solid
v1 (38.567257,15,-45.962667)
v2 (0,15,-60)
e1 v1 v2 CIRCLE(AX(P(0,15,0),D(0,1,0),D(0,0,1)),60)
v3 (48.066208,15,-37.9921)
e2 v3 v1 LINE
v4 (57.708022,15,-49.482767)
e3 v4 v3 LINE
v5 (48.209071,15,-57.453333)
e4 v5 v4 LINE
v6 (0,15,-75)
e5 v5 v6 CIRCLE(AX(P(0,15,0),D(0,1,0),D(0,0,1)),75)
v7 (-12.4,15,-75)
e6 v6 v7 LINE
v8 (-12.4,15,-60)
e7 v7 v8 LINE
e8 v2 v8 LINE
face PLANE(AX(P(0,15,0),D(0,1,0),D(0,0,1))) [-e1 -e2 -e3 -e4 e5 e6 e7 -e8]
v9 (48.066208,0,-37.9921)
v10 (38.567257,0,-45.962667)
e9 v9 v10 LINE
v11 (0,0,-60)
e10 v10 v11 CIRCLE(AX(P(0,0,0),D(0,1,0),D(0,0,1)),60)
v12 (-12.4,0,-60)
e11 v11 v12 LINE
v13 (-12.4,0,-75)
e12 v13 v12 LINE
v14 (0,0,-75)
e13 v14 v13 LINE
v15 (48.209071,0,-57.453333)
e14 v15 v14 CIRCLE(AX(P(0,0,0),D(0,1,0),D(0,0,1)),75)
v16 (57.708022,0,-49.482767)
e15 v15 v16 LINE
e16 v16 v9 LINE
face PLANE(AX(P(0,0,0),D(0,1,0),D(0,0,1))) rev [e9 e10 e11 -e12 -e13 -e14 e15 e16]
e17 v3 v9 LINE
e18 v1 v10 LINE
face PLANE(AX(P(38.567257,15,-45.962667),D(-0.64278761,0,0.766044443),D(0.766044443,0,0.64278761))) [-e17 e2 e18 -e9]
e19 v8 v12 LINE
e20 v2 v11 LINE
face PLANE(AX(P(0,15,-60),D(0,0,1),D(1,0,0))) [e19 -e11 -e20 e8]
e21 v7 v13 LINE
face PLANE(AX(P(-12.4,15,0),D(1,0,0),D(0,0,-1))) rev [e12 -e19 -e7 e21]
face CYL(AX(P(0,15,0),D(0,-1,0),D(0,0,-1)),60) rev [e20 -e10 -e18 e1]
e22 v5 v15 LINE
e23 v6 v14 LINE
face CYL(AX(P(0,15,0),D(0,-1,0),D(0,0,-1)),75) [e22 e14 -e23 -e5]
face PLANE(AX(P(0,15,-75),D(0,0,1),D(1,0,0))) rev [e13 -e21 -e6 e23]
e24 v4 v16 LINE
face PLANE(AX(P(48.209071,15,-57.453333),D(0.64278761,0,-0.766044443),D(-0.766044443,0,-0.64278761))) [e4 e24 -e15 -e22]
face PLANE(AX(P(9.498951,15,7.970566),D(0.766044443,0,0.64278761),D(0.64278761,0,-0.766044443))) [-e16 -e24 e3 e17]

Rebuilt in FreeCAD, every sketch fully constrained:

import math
import FreeCAD as App
import Part
import Sketcher
from FreeCAD import Vector
Q = App.Units.Quantity

doc = App.newDocument("Part")
params = doc.addObject("Spreadsheet::Sheet", "Params")
for row, (alias, value) in enumerate([
    ("sketch1_radius", "60 mm"),
    ("sketch1_radius2", "75 mm"),
    ("sketch1_width", "12.4 mm"),
    ("sketch1_length", "12.4 mm"),
    ("pad1_length", "15 mm"),
], start=1):
    params.set(f"A{row}", alias)
    params.set(f"B{row}", "=" + value)
    params.setAlias(f"B{row}", alias)

body = doc.addObject("PartDesign::Body", "Body")

sketch1 = body.newObject("Sketcher::SketchObject", "Sketch")
sketch1.AttachmentSupport = (doc.getObject("XZ_Plane"), [""])
sketch1.MapMode = "FlatFace"
sketch1.addGeometry([
    Part.ArcOfCircle(Part.Circle(Vector(0, 0, 0), Vector(0, 0, 1), 60), math.radians(-90), math.radians(-50)),
    Part.LineSegment(Vector(38.6, -46, 0), Vector(48.1, -38, 0)),
    Part.LineSegment(Vector(48.1, -38, 0), Vector(57, -48.7, 0)),
    Part.LineSegment(Vector(57, -48.7, 0), Vector(57.7, -49.5, 0)),
    Part.LineSegment(Vector(57.7, -49.5, 0), Vector(48.2, -57.5, 0)),
    Part.ArcOfCircle(Part.Circle(Vector(0, 0, 0), Vector(0, 0, 1), 75), math.radians(-90), math.radians(-50)),
    Part.LineSegment(Vector(0, -75, 0), Vector(-12.4, -75, 0)),
    Part.LineSegment(Vector(-12.4, -75, 0), Vector(-12.4, -60, 0)),
    Part.LineSegment(Vector(-12.4, -60, 0), Vector(0, -60, 0)),
], False)
sketch1.addConstraint([
    Sketcher.Constraint("Tangent", 0, 2, 1, 1),
    Sketcher.Constraint("Coincident", 1, 2, 2, 1),
    Sketcher.Constraint("Coincident", 2, 2, 3, 1),
    Sketcher.Constraint("Coincident", 3, 2, 4, 1),
    Sketcher.Constraint("Tangent", 4, 2, 5, 2),
    Sketcher.Constraint("Tangent", 5, 1, 6, 1),
    Sketcher.Constraint("Coincident", 6, 2, 7, 1),
    Sketcher.Constraint("Coincident", 7, 2, 8, 1),
    Sketcher.Constraint("Tangent", 8, 2, 0, 1),
    Sketcher.Constraint("Horizontal", 6),
    Sketcher.Constraint("Vertical", 7),
    Sketcher.Constraint("Horizontal", 8),
    Sketcher.Constraint("Coincident", 0, 3, -1, 1),
    Sketcher.Constraint("Coincident", 5, 3, -1, 1),
    Sketcher.Constraint("Perpendicular", 1, 2),
    Sketcher.Constraint("Parallel", 2, 3),
    Sketcher.Constraint("Perpendicular", 3, 4),
    Sketcher.Constraint("Radius", 0, Q("60 mm")),
    Sketcher.Constraint("Radius", 5, Q("75 mm")),
    Sketcher.Constraint("Angle", 1, Q("40 deg")),
    Sketcher.Constraint("DistanceX", 6, 2, 6, 1, Q("12.4 mm")),
    Sketcher.Constraint("Distance", 1, Q("12.4 mm")),
    Sketcher.Constraint("DistanceX", 0, 2, 2, 2, Q("18.4773 mm")),
])
sketch1.setExpression("Constraints[17]", "Params.sketch1_radius")
sketch1.setExpression("Constraints[18]", "Params.sketch1_radius2")
sketch1.setExpression("Constraints[20]", "Params.sketch1_width")
sketch1.setExpression("Constraints[21]", "Params.sketch1_length")
pad1 = body.newObject("PartDesign::Pad", "Pad")
pad1.Profile = sketch1
pad1.setExpression("Length", "Params.pad1_length")
pad1.Reversed = True

doc.recompute()
